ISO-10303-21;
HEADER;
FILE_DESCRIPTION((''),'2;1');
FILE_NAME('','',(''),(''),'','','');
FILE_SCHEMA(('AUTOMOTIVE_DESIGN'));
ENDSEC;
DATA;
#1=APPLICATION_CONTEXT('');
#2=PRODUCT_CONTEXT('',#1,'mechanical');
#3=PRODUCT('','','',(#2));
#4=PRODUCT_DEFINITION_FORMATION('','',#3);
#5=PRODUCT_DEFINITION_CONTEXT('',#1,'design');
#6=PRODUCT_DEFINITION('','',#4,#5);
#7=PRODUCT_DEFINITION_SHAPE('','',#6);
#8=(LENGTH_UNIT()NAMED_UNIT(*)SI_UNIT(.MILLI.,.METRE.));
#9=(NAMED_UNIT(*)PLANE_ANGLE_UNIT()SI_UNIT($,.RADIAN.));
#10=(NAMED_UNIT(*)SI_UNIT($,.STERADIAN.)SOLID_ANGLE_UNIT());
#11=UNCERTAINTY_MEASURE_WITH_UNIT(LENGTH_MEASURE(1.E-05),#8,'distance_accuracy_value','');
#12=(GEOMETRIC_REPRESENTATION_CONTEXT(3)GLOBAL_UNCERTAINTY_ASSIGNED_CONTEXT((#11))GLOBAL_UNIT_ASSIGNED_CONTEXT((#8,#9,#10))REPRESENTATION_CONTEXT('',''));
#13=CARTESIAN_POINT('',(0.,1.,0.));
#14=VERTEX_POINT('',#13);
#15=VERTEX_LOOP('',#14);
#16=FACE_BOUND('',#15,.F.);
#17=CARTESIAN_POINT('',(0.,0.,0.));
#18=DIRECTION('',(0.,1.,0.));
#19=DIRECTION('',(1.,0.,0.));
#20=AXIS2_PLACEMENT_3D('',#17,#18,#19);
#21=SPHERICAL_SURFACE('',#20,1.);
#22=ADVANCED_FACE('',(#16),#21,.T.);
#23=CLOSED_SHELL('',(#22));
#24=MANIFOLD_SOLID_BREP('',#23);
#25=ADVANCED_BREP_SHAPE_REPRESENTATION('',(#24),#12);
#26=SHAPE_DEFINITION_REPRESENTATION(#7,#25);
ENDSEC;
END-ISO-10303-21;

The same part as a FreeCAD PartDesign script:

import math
import FreeCAD as App
import Part
import Sketcher

V = App.Vector

doc = App.newDocument("Part")
body = doc.addObject("PartDesign::Body", "Body")

# Sketch on XY plane
sketch1 = body.newObject("Sketcher::SketchObject", "Sketch")
sketch1.AttachmentSupport = (doc.getObject("XY_Plane"), [""])
sketch1.MapMode = "FlatFace"
sketch1.addGeometry(Part.LineSegment(V(0, 1, 0), V(0, -1, 0)), False)
sketch1.addGeometry(Part.ArcOfCircle(Part.Circle(V(0, 0, 0), V(0, 0, 1), 1), math.radians(-90), math.radians(90)), False)
sketch1.addConstraint(Sketcher.Constraint("Coincident", 0, 1, 1, 2))
sketch1.addConstraint(Sketcher.Constraint("Coincident", 1, 1, 0, 2))
sketch1.addConstraint(Sketcher.Constraint("Vertical", 0))
sketch1.addConstraint(Sketcher.Constraint("Coincident", 1, 3, -1, 1))
sketch1.addConstraint(Sketcher.Constraint("PointOnObject", 0, 1, -2))
sketch1.addConstraint(Sketcher.Constraint("Radius", 1, 1.0))
revolution = body.newObject("PartDesign::Revolution", "Revolution")
revolution.Profile = sketch1
revolution.ReferenceAxis = (sketch1, ["V_Axis"])
revolution.Angle = 360

doc.recompute()
